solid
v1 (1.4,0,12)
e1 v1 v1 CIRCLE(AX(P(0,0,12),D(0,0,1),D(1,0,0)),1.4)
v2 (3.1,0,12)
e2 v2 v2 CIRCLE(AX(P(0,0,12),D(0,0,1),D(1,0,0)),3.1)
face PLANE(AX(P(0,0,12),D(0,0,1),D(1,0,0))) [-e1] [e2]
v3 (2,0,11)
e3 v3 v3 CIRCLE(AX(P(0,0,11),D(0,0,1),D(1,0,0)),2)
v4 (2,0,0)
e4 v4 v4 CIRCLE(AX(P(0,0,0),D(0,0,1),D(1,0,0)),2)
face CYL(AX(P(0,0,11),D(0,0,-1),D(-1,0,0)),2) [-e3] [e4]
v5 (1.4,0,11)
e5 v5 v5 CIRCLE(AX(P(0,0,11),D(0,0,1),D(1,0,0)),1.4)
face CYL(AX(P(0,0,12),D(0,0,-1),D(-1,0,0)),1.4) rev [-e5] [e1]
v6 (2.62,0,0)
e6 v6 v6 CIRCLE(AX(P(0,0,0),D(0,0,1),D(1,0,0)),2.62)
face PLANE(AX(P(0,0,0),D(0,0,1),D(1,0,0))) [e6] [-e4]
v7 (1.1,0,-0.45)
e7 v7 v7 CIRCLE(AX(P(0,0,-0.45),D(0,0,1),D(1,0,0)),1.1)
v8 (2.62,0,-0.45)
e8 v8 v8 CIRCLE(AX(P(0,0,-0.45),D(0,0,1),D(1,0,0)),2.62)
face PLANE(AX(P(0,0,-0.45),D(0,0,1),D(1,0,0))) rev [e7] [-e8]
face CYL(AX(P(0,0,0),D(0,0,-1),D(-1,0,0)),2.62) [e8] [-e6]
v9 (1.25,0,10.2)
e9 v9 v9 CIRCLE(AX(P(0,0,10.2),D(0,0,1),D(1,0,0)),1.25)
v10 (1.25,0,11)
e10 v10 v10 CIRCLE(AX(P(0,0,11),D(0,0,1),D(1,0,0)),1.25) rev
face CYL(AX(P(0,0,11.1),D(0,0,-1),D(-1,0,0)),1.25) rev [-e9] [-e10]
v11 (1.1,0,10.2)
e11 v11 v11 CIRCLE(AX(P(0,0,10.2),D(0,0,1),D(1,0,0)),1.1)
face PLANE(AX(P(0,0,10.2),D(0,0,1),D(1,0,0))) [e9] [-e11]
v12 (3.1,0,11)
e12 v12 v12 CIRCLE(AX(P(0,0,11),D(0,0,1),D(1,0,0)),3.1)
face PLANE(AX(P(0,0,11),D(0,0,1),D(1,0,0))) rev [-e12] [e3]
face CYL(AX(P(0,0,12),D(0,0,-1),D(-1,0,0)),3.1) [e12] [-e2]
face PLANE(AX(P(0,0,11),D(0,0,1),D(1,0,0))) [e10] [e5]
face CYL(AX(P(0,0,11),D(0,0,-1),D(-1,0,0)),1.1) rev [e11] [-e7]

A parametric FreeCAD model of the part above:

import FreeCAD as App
import Part
import Sketcher

V = App.Vector

doc = App.newDocument("Part")
body = doc.addObject("PartDesign::Body", "Body")

# Sketch on XY plane
sketch1 = doc.addObject("Sketcher::SketchObject", "Sketch")
body.addObject(sketch1)
sketch1.AttachmentSupport = (doc.XY_Plane, [""])
sketch1.MapMode = "FlatFace"
sketch1.addGeometry(Part.Circle(V(0, 0, 0), V(0, 0, 1), 2), False)
sketch1.addGeometry(Part.Circle(V(0, 0, 0), V(0, 0, 1), 1.1), False)
sketch1.addConstraint(Sketcher.Constraint("Coincident", 0, 3, -1, 1))
sketch1.addConstraint(Sketcher.Constraint("Coincident", 1, 3, -1, 1))
sketch1.addConstraint(Sketcher.Constraint("Diameter", 0, 4.0))
sketch1.addConstraint(Sketcher.Constraint("Diameter", 1, 2.2))
pad1 = doc.addObject("PartDesign::Pad", "Pad")
body.addObject(pad1)
pad1.Profile = sketch1
pad1.Length = 11

# Sketch on XY plane
sketch2 = doc.addObject("Sketcher::SketchObject", "Sketch001")
body.addObject(sketch2)
sketch2.AttachmentSupport = (doc.XY_Plane, [""])
sketch2.MapMode = "FlatFace"
sketch2.AttachmentOffset = App.Placement(V(0, 0, -0.45), App.Rotation())
sketch2.addGeometry(Part.Circle(V(0, 0, 0), V(0, 0, 1), 2.6), False)
sketch2.addGeometry(Part.Circle(V(0, 0, 0), V(0, 0, 1), 1.1), False)
sketch2.addConstraint(Sketcher.Constraint("Coincident", 0, 3, -1, 1))
sketch2.addConstraint(Sketcher.Constraint("Coincident", 1, 3, -1, 1))
sketch2.addConstraint(Sketcher.Constraint("Diameter", 1, 2.2))
sketch2.addConstraint(Sketcher.Constraint("Diameter", 0, 5.24))
pad2 = doc.addObject("PartDesign::Pad", "Pad001")
body.addObject(pad2)
pad2.Profile = sketch2
pad2.Length = 0.45

# Sketch on XY plane
sketch3 = doc.addObject("Sketcher::SketchObject", "Sketch002")
body.addObject(sketch3)
sketch3.AttachmentSupport = (doc.XY_Plane, [""])
sketch3.MapMode = "FlatFace"
sketch3.AttachmentOffset = App.Placement(V(0, 0, 11), App.Rotation())
sketch3.addGeometry(Part.Circle(V(0, 0, 0), V(0, 0, 1), 3.1), False)
sketch3.addGeometry(Part.Circle(V(0, 0, 0), V(0, 0, 1), 1.4), False)
sketch3.addConstraint(Sketcher.Constraint("Coincident", 0, 3, -1, 1))
sketch3.addConstraint(Sketcher.Constraint("Coincident", 1, 3, -1, 1))
sketch3.addConstraint(Sketcher.Constraint("Diameter", 0, 6.2))
sketch3.addConstraint(Sketcher.Constraint("Diameter", 1, 2.8))
pad3 = doc.addObject("PartDesign::Pad", "Pad002")
body.addObject(pad3)
pad3.Profile = sketch3
pad3.Length = 1

# Sketch on XY plane
sketch4 = doc.addObject("Sketcher::SketchObject", "Sketch003")
body.addObject(sketch4)
sketch4.AttachmentSupport = (doc.XY_Plane, [""])
sketch4.MapMode = "FlatFace"
sketch4.AttachmentOffset = App.Placement(V(0, 0, 10.2), App.Rotation())
sketch4.addGeometry(Part.Circle(V(0, 0, 0), V(0, 0, 1), 1.2), False)
sketch4.addConstraint(Sketcher.Constraint("Coincident", 0, 3, -1, 1))
sketch4.addConstraint(Sketcher.Constraint("Diameter", 0, 2.5))
pocket1 = doc.addObject("PartDesign::Pocket", "Pocket")
body.addObject(pocket1)
pocket1.Profile = sketch4
pocket1.Length = 0.9
pocket1.Reversed = True

doc.recompute()
